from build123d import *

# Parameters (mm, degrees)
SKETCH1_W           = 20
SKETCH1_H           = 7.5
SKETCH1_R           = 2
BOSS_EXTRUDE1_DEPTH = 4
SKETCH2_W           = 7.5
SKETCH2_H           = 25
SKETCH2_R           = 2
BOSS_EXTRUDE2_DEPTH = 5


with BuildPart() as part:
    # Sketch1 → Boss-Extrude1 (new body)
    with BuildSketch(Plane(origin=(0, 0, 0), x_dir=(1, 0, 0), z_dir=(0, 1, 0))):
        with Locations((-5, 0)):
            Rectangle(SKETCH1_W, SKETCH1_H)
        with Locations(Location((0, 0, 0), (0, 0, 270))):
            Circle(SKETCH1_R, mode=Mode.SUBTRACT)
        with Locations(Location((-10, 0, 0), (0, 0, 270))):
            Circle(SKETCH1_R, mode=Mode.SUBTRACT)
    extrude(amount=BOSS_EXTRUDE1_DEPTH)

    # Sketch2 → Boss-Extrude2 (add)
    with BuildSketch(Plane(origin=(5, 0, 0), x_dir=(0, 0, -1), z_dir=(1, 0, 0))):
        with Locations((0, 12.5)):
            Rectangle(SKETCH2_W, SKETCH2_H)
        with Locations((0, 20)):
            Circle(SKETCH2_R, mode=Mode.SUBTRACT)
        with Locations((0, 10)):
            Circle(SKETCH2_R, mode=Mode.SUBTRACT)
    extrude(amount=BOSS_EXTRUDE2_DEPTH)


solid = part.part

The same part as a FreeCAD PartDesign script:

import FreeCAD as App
import Part
import Sketcher
from FreeCAD import Vector
Q = App.Units.Quantity


def add_polygon(sketch, points):
    """Adds a closed chain of lines whose ends are joined by coincident constraints."""
    first, n = sketch.GeometryCount, len(points)
    for a, b in zip(points, points[1:] + points[:1]):
        sketch.addGeometry(Part.LineSegment(App.Vector(*a, 0), App.Vector(*b, 0)), False)
    for i in range(n):
        sketch.addConstraint(Sketcher.Constraint("Coincident", first + i, 2, first + (i + 1) % n, 1))

doc = App.newDocument("Part")
body = doc.addObject("PartDesign::Body", "Body")

# Sketch on XZ plane
sketch1 = body.newObject("Sketcher::SketchObject", "Sketch")
sketch1.AttachmentSupport = (doc.getObject("XZ_Plane"), [""])
sketch1.MapMode = "FlatFace"
add_polygon(sketch1, [(-15, -3.75), (-15, 3.75), (5, 3.75), (5, -3.75)])  # lines 0-3
sketch1.addGeometry(Part.Circle(Vector(-10, 0, 0), Vector(0, 0, 1), 2), False)  # 4
sketch1.addGeometry(Part.Circle(Vector(0, 0, 0), Vector(0, 0, 1), 2), False)  # 5
sketch1.addConstraint([
    Sketcher.Constraint("Vertical", 0),
    Sketcher.Constraint("Horizontal", 1),
    Sketcher.Constraint("Vertical", 2),
    Sketcher.Constraint("Horizontal", 3),
    Sketcher.Constraint("Coincident", 5, 3, -1, 1),
    Sketcher.Constraint("Equal", 4, 5),
    Sketcher.Constraint("PointOnObject", 4, 3, -1),
    Sketcher.Constraint("Diameter", 4, Q("4 mm")),
    Sketcher.Constraint("DistanceX", 1, 1, 1, 2, Q("20 mm")),
    Sketcher.Constraint("DistanceY", 0, 1, 0, 2, Q("7.5 mm")),
    Sketcher.Constraint("DistanceX", 4, 3, -1, 1, Q("10 mm")),
    Sketcher.Constraint("DistanceX", 0, 2, -1, 1, Q("15 mm")),
    Sketcher.Constraint("DistanceY", -1, 1, 0, 2, Q("3.75 mm")),
])
pad1 = body.newObject("PartDesign::Pad", "Pad")
pad1.Profile = sketch1
pad1.Length = 4
pad1.Reversed = True

# Sketch on YZ plane
sketch2 = body.newObject("Sketcher::SketchObject", "Sketch001")
sketch2.AttachmentSupport = (doc.getObject("YZ_Plane"), [""])
sketch2.MapMode = "FlatFace"
sketch2.AttachmentOffset = App.Placement(Vector(0, 0, 5), App.Rotation())
add_polygon(sketch2, [(25, 3.75), (0, 3.75), (0, -3.75), (25, -3.75)])  # lines 0-3
sketch2.addGeometry(Part.Circle(Vector(10, 0, 0), Vector(0, 0, 1), 2), False)  # 4
sketch2.addGeometry(Part.Circle(Vector(20, 0, 0), Vector(0, 0, 1), 2), False)  # 5
sketch2.addConstraint([
    Sketcher.Constraint("Horizontal", 0),
    Sketcher.Constraint("Vertical", 1),
    Sketcher.Constraint("Horizontal", 2),
    Sketcher.Constraint("Vertical", 3),
    Sketcher.Constraint("Equal", 4, 5),
    Sketcher.Constraint("Symmetric", 0, 2, 1, 2, -1, 1),
    Sketcher.Constraint("PointOnObject", 4, 3, -1),
    Sketcher.Constraint("PointOnObject", 5, 3, -1),
    Sketcher.Constraint("Diameter", 4, Q("4 mm")),
    Sketcher.Constraint("DistanceX", 0, 2, 0, 1, Q("25 mm")),
    Sketcher.Constraint("DistanceY", 1, 2, 1, 1, Q("7.5 mm")),
    Sketcher.Constraint("DistanceX", -1, 1, 4, 3, Q("10 mm")),
    Sketcher.Constraint("DistanceX", -1, 1, 5, 3, Q("20 mm")),
])
pad2 = body.newObject("PartDesign::Pad", "Pad001")
pad2.Profile = sketch2
pad2.Length = 5

doc.recompute()
